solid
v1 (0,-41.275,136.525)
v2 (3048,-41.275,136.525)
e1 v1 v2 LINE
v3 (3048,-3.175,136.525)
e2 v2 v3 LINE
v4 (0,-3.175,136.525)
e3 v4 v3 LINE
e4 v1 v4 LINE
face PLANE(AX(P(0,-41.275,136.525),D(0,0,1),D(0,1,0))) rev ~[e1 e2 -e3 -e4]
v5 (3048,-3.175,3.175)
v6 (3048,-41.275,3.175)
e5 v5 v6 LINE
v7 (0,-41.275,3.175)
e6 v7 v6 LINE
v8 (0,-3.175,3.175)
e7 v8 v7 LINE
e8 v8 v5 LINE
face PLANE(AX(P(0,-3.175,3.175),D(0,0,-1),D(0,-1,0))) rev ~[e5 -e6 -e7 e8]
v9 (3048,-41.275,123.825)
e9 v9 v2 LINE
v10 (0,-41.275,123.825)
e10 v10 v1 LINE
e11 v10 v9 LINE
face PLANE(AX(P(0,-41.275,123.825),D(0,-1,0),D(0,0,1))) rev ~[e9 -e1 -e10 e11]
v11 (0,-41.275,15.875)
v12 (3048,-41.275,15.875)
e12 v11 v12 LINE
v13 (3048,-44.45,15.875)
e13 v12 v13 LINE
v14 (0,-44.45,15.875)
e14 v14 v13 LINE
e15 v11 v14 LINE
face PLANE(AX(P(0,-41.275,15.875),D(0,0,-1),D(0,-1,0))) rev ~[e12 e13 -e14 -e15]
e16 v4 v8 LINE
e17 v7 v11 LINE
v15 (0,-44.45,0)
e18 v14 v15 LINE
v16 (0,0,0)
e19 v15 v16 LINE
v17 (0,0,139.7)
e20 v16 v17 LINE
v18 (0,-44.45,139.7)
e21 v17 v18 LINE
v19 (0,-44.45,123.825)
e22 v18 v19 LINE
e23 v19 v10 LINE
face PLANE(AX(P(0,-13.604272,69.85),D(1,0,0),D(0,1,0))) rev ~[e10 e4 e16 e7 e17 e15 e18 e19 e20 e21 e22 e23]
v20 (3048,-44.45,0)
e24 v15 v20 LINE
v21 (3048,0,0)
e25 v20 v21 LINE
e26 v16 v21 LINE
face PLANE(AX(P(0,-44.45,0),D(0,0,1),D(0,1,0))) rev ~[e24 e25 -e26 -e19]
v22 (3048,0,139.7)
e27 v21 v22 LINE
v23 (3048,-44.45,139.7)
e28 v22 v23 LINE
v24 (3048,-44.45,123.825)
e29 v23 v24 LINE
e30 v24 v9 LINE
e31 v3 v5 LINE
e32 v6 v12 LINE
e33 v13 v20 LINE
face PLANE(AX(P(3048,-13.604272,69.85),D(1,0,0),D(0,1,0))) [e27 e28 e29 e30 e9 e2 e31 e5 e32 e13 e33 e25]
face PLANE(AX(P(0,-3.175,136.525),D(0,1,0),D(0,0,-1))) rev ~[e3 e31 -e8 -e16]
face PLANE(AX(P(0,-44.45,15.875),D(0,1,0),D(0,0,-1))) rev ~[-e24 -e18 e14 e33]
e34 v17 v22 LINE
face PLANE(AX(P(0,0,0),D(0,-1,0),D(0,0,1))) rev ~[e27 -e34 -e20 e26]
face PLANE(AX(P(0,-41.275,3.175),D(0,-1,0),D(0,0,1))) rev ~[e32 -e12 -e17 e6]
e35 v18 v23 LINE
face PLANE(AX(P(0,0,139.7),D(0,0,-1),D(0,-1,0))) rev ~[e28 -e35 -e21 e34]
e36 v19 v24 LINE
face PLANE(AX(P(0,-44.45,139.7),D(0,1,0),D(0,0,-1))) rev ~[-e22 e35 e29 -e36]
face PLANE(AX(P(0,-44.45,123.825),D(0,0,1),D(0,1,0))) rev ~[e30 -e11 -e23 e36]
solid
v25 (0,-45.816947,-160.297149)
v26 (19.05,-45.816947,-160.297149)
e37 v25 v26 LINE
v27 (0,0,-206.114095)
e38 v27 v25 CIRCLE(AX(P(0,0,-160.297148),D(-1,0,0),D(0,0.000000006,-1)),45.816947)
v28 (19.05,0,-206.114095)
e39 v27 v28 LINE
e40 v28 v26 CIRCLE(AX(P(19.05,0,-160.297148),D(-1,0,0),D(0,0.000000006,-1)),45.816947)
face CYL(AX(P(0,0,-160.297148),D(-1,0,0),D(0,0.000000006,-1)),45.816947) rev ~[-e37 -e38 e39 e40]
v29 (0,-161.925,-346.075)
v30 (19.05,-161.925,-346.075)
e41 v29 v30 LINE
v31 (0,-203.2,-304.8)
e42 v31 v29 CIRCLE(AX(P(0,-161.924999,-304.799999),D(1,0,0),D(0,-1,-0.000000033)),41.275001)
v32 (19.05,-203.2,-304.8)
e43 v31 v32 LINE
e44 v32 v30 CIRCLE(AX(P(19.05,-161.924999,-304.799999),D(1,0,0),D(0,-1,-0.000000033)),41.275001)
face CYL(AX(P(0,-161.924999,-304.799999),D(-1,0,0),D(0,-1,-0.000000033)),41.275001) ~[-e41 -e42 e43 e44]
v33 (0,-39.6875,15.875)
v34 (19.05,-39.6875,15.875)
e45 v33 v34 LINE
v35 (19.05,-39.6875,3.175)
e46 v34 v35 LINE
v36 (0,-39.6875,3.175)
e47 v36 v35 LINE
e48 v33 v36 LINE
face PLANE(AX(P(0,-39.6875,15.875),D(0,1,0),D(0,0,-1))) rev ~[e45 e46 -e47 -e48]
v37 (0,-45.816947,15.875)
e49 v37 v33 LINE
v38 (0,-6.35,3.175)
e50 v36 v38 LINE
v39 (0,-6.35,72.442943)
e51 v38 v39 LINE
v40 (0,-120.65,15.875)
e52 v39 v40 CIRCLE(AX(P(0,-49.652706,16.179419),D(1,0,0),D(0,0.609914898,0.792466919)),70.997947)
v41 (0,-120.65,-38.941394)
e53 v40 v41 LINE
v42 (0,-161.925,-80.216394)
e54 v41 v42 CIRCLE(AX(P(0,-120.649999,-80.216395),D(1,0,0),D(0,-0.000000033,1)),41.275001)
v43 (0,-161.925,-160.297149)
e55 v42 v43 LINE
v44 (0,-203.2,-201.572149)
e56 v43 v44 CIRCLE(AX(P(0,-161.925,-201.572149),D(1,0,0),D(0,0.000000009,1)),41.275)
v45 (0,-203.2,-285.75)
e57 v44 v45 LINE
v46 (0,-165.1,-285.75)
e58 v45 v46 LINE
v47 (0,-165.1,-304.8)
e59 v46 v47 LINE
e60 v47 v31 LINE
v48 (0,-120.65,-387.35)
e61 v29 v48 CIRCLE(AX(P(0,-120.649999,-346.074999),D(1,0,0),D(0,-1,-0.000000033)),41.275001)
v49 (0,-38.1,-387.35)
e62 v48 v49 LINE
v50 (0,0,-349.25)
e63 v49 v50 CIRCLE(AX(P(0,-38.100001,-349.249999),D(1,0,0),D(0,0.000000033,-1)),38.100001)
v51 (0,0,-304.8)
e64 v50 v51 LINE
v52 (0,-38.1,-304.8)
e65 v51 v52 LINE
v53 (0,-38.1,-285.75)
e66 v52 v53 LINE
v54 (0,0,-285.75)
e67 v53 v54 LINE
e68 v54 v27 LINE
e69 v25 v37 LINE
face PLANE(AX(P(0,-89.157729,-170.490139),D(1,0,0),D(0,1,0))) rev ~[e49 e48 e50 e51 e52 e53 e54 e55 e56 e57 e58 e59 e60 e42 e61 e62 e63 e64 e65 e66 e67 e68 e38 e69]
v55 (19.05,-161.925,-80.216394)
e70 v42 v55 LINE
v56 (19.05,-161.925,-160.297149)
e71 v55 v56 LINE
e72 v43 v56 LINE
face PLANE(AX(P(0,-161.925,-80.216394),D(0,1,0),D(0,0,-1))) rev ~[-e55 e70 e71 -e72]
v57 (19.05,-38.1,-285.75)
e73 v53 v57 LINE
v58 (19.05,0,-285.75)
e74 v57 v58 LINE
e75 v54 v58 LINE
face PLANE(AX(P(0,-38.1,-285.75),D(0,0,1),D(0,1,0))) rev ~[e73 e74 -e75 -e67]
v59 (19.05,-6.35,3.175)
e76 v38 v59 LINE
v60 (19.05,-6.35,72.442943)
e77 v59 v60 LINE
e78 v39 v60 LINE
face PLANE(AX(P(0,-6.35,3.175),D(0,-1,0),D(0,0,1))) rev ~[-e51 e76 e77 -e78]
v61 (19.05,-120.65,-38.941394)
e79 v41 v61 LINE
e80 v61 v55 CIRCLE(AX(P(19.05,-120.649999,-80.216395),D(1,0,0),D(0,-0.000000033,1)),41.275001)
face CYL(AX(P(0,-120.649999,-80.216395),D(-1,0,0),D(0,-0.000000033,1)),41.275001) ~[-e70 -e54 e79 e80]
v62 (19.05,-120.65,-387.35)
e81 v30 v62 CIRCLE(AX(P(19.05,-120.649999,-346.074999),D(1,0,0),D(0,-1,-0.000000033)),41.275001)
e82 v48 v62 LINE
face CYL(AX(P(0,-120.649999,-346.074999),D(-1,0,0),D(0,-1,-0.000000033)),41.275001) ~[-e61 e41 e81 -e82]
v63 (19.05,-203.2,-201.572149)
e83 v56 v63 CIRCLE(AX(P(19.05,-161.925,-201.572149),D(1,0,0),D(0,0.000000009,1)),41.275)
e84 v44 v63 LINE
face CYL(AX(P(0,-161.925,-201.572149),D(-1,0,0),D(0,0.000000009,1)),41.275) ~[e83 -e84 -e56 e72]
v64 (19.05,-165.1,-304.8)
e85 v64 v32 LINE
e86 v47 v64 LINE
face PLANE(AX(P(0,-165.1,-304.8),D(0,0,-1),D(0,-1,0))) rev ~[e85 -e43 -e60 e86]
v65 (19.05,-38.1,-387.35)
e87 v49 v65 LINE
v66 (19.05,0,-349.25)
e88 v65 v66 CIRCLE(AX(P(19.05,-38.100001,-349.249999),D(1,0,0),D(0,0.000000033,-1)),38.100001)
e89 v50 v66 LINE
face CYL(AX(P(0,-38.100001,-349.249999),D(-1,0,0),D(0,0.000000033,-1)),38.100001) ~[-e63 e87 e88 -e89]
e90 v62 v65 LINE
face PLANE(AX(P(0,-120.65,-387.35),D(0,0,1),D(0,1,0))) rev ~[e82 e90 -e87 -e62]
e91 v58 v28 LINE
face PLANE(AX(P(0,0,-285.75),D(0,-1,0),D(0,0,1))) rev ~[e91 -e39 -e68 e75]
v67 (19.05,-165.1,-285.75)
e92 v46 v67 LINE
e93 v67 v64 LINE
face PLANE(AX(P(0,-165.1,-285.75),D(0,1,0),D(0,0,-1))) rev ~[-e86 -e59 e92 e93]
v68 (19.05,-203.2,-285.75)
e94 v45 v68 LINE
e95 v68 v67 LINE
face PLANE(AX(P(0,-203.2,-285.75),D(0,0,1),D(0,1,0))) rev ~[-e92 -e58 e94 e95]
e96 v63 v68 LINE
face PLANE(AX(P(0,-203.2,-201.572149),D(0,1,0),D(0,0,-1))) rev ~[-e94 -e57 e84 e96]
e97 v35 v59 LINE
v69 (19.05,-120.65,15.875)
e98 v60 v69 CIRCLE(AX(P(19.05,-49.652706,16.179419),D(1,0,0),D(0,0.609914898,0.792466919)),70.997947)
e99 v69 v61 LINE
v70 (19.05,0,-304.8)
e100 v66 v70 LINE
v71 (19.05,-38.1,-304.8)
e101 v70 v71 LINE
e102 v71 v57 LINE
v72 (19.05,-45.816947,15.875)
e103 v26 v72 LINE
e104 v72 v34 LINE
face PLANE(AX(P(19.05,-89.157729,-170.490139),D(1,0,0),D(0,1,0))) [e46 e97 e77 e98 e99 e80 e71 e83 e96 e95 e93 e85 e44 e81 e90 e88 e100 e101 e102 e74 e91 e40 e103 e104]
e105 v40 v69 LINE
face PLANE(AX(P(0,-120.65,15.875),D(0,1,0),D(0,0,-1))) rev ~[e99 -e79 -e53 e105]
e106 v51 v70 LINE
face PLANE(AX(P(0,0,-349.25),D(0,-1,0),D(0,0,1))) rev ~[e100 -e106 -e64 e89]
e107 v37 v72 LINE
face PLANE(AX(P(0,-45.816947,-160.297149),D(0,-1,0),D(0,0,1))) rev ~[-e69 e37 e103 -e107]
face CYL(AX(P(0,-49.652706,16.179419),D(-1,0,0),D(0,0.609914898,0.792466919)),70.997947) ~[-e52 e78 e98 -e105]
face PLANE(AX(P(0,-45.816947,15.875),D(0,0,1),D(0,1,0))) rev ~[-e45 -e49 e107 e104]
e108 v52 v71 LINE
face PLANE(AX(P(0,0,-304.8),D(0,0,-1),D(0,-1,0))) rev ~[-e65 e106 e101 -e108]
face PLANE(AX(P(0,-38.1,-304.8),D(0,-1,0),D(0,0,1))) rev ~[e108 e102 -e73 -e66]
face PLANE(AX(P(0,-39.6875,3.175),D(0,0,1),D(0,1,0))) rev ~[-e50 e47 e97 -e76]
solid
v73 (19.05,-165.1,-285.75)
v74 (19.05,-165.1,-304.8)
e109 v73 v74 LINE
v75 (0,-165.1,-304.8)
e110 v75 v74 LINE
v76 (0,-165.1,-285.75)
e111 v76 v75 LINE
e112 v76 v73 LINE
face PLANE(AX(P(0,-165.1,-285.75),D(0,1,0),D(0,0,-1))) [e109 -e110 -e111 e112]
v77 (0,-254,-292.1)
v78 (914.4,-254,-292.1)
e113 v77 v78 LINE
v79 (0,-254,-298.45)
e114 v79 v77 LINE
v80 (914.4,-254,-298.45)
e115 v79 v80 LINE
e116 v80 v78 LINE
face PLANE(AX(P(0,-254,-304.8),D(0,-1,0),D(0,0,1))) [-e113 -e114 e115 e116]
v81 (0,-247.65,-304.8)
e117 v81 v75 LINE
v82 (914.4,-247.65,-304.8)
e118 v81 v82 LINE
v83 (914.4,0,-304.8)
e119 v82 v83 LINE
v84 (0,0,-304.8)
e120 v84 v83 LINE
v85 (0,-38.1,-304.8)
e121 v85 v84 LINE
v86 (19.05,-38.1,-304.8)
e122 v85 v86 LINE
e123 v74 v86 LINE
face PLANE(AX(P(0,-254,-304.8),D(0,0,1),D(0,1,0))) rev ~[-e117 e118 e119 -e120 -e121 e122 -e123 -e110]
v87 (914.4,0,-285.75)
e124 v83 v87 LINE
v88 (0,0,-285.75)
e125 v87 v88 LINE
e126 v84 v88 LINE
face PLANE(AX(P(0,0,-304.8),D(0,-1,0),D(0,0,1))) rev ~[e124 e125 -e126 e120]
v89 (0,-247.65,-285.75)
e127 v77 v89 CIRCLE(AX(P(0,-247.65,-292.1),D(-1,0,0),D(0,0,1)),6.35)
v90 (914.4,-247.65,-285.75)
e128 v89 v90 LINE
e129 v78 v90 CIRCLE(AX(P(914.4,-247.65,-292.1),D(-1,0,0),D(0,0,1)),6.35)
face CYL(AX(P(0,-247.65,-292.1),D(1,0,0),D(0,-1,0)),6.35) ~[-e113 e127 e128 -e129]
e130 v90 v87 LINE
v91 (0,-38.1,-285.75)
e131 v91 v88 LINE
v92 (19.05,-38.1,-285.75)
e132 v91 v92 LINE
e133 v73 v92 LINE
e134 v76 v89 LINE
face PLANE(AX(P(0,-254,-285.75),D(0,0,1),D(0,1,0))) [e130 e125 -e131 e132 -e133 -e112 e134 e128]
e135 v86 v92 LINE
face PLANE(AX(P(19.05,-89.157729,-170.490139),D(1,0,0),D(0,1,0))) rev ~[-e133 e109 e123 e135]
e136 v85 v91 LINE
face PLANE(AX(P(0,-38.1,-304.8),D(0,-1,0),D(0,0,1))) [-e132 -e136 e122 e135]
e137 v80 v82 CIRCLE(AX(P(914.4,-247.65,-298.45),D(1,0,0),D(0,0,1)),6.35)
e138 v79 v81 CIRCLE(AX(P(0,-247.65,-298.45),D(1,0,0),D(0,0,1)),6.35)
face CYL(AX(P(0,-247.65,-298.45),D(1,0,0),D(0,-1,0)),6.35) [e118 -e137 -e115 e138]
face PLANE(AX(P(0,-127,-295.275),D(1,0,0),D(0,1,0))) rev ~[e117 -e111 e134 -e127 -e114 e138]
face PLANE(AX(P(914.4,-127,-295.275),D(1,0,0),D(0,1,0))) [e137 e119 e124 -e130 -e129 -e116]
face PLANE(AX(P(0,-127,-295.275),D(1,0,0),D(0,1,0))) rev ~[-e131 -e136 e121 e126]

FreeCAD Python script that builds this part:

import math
import FreeCAD as App
import Part
import Sketcher

V = App.Vector
Q = App.Units.Quantity


def edges_at(feature, points):
    """Names of the edges that pass closest to the given points."""
    edges = feature.Shape.Edges
    near = lambda p: min(range(len(edges)), key=lambda i: edges[i].distToShape(Part.Vertex(*p))[0])
    return sorted({f"Edge{near(p) + 1}" for p in points})


def add_polygon(sketch, points):
    """Adds a closed chain of lines whose ends are joined by coincident constraints."""
    first, n = sketch.GeometryCount, len(points)
    for a, b in zip(points, points[1:] + points[:1]):
        sketch.addGeometry(Part.LineSegment(App.Vector(*a, 0), App.Vector(*b, 0)), False)
    for i in range(n):
        sketch.addConstraint(Sketcher.Constraint("Coincident", first + i, 2, first + (i + 1) % n, 1))

doc = App.newDocument("Part")
body = doc.addObject("PartDesign::Body", "Body")

# Sketch on YZ plane
sketch1 = body.newObject("Sketcher::SketchObject", "Sketch")
sketch1.AttachmentSupport = (doc.getObject("YZ_Plane"), [""])
sketch1.MapMode = "FlatFace"
add_polygon(sketch1, [(-44.5, 139.7), (-44.5, 123.8), (-41.3, 123.8), (-41.3, 136.5), (-3.2, 136.5), (-3.2, 3.2), (-41.3, 3.2), (-41.3, 15.9), (-44.5, 15.9), (-44.5, 0), (0, 0), (0, 139.7)])  # lines 0-11
sketch1.addConstraint([
    Sketcher.Constraint("Vertical", 0),
    Sketcher.Constraint("Horizontal", 1),
    Sketcher.Constraint("Vertical", 2),
    Sketcher.Constraint("Horizontal", 3),
    Sketcher.Constraint("Vertical", 4),
    Sketcher.Constraint("Horizontal", 5),
    Sketcher.Constraint("Vertical", 6),
    Sketcher.Constraint("Horizontal", 7),
    Sketcher.Constraint("Vertical", 8),
    Sketcher.Constraint("Horizontal", 9),
    Sketcher.Constraint("Vertical", 10),
    Sketcher.Constraint("Horizontal", 11),
    Sketcher.Constraint("Coincident", 9, 2, -1, 1),
    Sketcher.Constraint("Vertical", 2, 2, 5, 2),
    Sketcher.Constraint("Vertical", 0, 2, 7, 2),
    Sketcher.Constraint("Equal", 2, 6),
    Sketcher.Constraint("Equal", 0, 8),
    Sketcher.Constraint("DistanceX", 3, 1, 3, 2, Q("1.5 in")),
    Sketcher.Constraint("DistanceY", 2, 1, 2, 2, Q("0.5 in")),
    Sketcher.Constraint("DistanceY", 10, 1, 10, 2, Q("5.5 in")),
    Sketcher.Constraint("DistanceX", 9, 1, 9, 2, Q("1.75 in")),
    Sketcher.Constraint("DistanceY", 4, 2, 4, 1, Q("5.25 in")),
    Sketcher.Constraint("DistanceX", 1, 1, 1, 2, Q("0.125 in")),
])
pad1 = body.newObject("PartDesign::Pad", "Pad")
pad1.Profile = sketch1
pad1.Length = Q("120 in")
body2 = doc.addObject("PartDesign::Body", "Body001")

# Sketch on YZ plane
sketch2 = body2.newObject("Sketcher::SketchObject", "Sketch001")
sketch2.AttachmentSupport = (doc.getObject("YZ_Plane001"), [""])
sketch2.MapMode = "FlatFace"
add_polygon(sketch2, [(-254, -286), (-254, -305), (0, -305), (0, -286)])  # lines 0-3
sketch2.addConstraint([
    Sketcher.Constraint("Vertical", 0),
    Sketcher.Constraint("Horizontal", 1),
    Sketcher.Constraint("Vertical", 2),
    Sketcher.Constraint("Horizontal", 3),
    Sketcher.Constraint("PointOnObject", 1, 2, -2),
    Sketcher.Constraint("DistanceX", 1, 1, 1, 2, Q("10 in")),
    Sketcher.Constraint("DistanceY", 0, 2, -1, 1, Q("12 in")),
    Sketcher.Constraint("DistanceY", 0, 2, 0, 1, Q("0.75 in")),
])
pad2 = body2.newObject("PartDesign::Pad", "Pad001")
pad2.Profile = sketch2
pad2.Length = Q("36 in")
body3 = doc.addObject("PartDesign::Body", "Body002")

# Sketch on YZ plane
sketch3 = body3.newObject("Sketcher::SketchObject", "Sketch002")
sketch3.AttachmentSupport = (doc.getObject("YZ_Plane002"), [""])
sketch3.MapMode = "FlatFace"
sketch3.addGeometry([
    Part.LineSegment(V(-6, 3, 0), V(-6, 72, 0)),  # 0
    Part.ArcOfCircle(Part.Circle(V(-50, 16, 0), V(0, 0, 1), 71), math.radians(52), math.radians(180)),  # 1
    Part.LineSegment(V(-121, 16, 0), V(-121, -39, 0)),  # 2
    Part.ArcOfCircle(Part.Circle(V(-121, -80, 0), V(0, 0, 1), 41), math.radians(90), math.radians(180)),  # 3
    Part.LineSegment(V(-162, -80, 0), V(-162, -160, 0)),  # 4
    Part.ArcOfCircle(Part.Circle(V(-162, -202, 0), V(0, 0, 1), 41), math.radians(90), math.radians(180)),  # 5
    Part.LineSegment(V(-203, -202, 0), V(-203, -286, 0)),  # 6
    Part.LineSegment(V(-203, -286, 0), V(-165, -286, 0)),  # 7
    Part.LineSegment(V(-165, -286, 0), V(-165, -305, 0)),  # 8
    Part.LineSegment(V(-165, -305, 0), V(-203, -305, 0)),  # 9
    Part.ArcOfCircle(Part.Circle(V(-162, -305, 0), V(0, 0, 1), 41), math.radians(-180), math.radians(-90)),  # 10
    Part.ArcOfCircle(Part.Circle(V(-121, -346, 0), V(0, 0, 1), 41), math.radians(-180), math.radians(-90)),  # 11
    Part.LineSegment(V(-121, -387, 0), V(-38, -387, 0)),  # 12
    Part.ArcOfCircle(Part.Circle(V(-38, -349, 0), V(0, 0, 1), 38), math.radians(-90), math.radians(0)),  # 13
    Part.LineSegment(V(0, -349, 0), V(0, -305, 0)),  # 14
    Part.LineSegment(V(0, -305, 0), V(-38, -305, 0)),  # 15
    Part.LineSegment(V(-38, -305, 0), V(-38, -286, 0)),  # 16
    Part.LineSegment(V(-38, -286, 0), V(0, -286, 0)),  # 17
    Part.LineSegment(V(0, -286, 0), V(0, -206, 0)),  # 18
    Part.ArcOfCircle(Part.Circle(V(0, -160, 0), V(0, 0, 1), 46), math.radians(-180), math.radians(-90)),  # 19
    Part.LineSegment(V(-46, -160, 0), V(-46, 16, 0)),  # 20
    Part.LineSegment(V(-46, 16, 0), V(-40, 16, 0)),  # 21
    Part.LineSegment(V(-40, 16, 0), V(-40, 3, 0)),  # 22
    Part.LineSegment(V(-40, 3, 0), V(-6, 3, 0)),  # 23
], False)
sketch3.addConstraint([
    Sketcher.Constraint("Coincident", 0, 2, 1, 1),
    Sketcher.Constraint("Coincident", 1, 2, 2, 1),
    Sketcher.Constraint("Coincident", 2, 2, 3, 1),
    Sketcher.Constraint("Tangent", 3, 2, 4, 1),
    Sketcher.Constraint("Coincident", 4, 2, 5, 1),
    Sketcher.Constraint("Tangent", 5, 2, 6, 1),
    Sketcher.Constraint("Coincident", 6, 2, 7, 1),
    Sketcher.Constraint("Coincident", 7, 2, 8, 1),
    Sketcher.Constraint("Coincident", 8, 2, 9, 1),
    Sketcher.Constraint("Coincident", 9, 2, 10, 1),
    Sketcher.Constraint("Coincident", 10, 2, 11, 1),
    Sketcher.Constraint("Tangent", 11, 2, 12, 1),
    Sketcher.Constraint("Tangent", 12, 2, 13, 1),
    Sketcher.Constraint("Tangent", 13, 2, 14, 1),
    Sketcher.Constraint("Coincident", 14, 2, 15, 1),
    Sketcher.Constraint("Coincident", 15, 2, 16, 1),
    Sketcher.Constraint("Coincident", 16, 2, 17, 1),
    Sketcher.Constraint("Coincident", 17, 2, 18, 1),
    Sketcher.Constraint("Coincident", 18, 2, 19, 2),
    Sketcher.Constraint("Tangent", 19, 1, 20, 1),
    Sketcher.Constraint("Coincident", 20, 2, 21, 1),
    Sketcher.Constraint("Coincident", 21, 2, 22, 1),
    Sketcher.Constraint("Coincident", 22, 2, 23, 1),
    Sketcher.Constraint("Coincident", 23, 2, 0, 1),
    Sketcher.Constraint("Vertical", 0),
    Sketcher.Constraint("Vertical", 2),
    Sketcher.Constraint("Vertical", 4),
    Sketcher.Constraint("Vertical", 6),
    Sketcher.Constraint("Horizontal", 7),
    Sketcher.Constraint("Vertical", 8),
    Sketcher.Constraint("Horizontal", 9),
    Sketcher.Constraint("Horizontal", 12),
    Sketcher.Constraint("Vertical", 14),
    Sketcher.Constraint("Horizontal", 15),
    Sketcher.Constraint("Vertical", 16),
    Sketcher.Constraint("Horizontal", 17),
    Sketcher.Constraint("Vertical", 18),
    Sketcher.Constraint("Vertical", 20),
    Sketcher.Constraint("Horizontal", 21),
    Sketcher.Constraint("Vertical", 22),
    Sketcher.Constraint("Horizontal", 23),
    Sketcher.Constraint("Equal", 3, 5),
    Sketcher.Constraint("Equal", 5, 10),
    Sketcher.Constraint("Equal", 10, 11),
    Sketcher.Constraint("PointOnObject", 19, 3, -2),
    Sketcher.Constraint("PointOnObject", 13, 2, -2),
    Sketcher.Constraint("PointOnObject", 17, 2, -2),
    Sketcher.Constraint("Horizontal", 19, 3, 4, 2),
    Sketcher.Constraint("Horizontal", 10, 3, 8, 2),
    Sketcher.Constraint("Horizontal", 11, 3, 10, 2),
    Sketcher.Constraint("Horizontal", 9, 2, 14, 2),
    Sketcher.Constraint("Horizontal", 7, 2, 16, 2),
    Sketcher.Constraint("Horizontal", 1, 2, 20, 2),
    Sketcher.Constraint("Vertical", 5, 3, 10, 3),
    Sketcher.Constraint("Vertical", 3, 3, 11, 3),
    Sketcher.Constraint("Vertical", 11, 3, 1, 2),
    Sketcher.Constraint("Vertical", 10, 3, 3, 2),
    Sketcher.Constraint("Vertical", 12, 2, 15, 2),
    Sketcher.Constraint("Equal", 9, 15),
    Sketcher.Constraint("Radius", 13, Q("1.5 in")),
    Sketcher.Constraint("DistanceY", 22, 2, 22, 1, Q("0.5 in")),
    Sketcher.Constraint("DistanceY", 10, 3, -1, 1, Q("11.9999999 in")),
    Sketcher.Constraint("DistanceX", 5, 2, -1, 1, Q("8 in")),
    Sketcher.Constraint("Radius", 3, Q("1.6250001 in")),
    Sketcher.Constraint("DistanceY", 12, 2, 16, 2, Q("4 in")),
    Sketcher.Constraint("DistanceX", 3, 3, 0, 2, Q("4.4999999 in")),
    Sketcher.Constraint("DistanceX", 23, 1, 23, 2, Q("1.3125 in")),
    Sketcher.Constraint("DistanceY", -1, 1, 1, 2, Q("0.625 in")),
    Sketcher.Constraint("Radius", 1, 70.997947),
    Sketcher.Constraint("Radius", 19, 45.816947),
    Sketcher.Constraint("DistanceY", 6, 2, 6, 1, 84.177851),
    Sketcher.Constraint("DistanceY", 0, 1, 0, 2, 69.267943),
    Sketcher.Constraint("DistanceY", 2, 2, 2, 1, 54.816394),
])
pad3 = body3.newObject("PartDesign::Pad", "Pad002")
pad3.Profile = sketch3
pad3.Length = Q("0.75 in")
doc.recompute()

body4 = doc.addObject("PartDesign::Body", "Body003")
body4.BaseFeature = body3
boolean = body2.newObject("PartDesign::Boolean", "Boolean")
boolean.Type = "Cut"
boolean.addObjects([body4])
doc.recompute()

fillet = body2.newObject("PartDesign::Fillet", "Fillet")
fillet.Base = (boolean, edges_at(boolean, [(457.2, -254, -285.75), (457.2, -254, -304.8)]))
fillet.Radius = Q("0.25 in")

doc.recompute()
